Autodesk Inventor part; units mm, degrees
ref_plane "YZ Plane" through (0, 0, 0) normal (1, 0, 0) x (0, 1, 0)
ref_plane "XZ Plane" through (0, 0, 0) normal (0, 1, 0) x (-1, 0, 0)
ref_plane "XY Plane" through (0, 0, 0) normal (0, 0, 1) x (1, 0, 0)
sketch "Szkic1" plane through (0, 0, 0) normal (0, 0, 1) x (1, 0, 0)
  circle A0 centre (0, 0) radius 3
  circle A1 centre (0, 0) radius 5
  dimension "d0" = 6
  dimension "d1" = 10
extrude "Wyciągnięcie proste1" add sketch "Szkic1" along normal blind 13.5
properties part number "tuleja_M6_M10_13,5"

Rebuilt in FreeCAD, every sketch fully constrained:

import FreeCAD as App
import Part
import Sketcher
Q = App.Units.Quantity

doc = App.newDocument("Part")
body = doc.addObject("PartDesign::Body", "Body")

# Sketch on XY plane
sketch1 = body.newObject("Sketcher::SketchObject", "Sketch")
sketch1.AttachmentSupport = (doc.getObject("XY_Plane"), [""])
sketch1.MapMode = "FlatFace"
sketch1.addGeometry([
    Part.Circle(App.Vector(0, 0, 0), App.Vector(0, 0, 1), 5),
    Part.Circle(App.Vector(0, 0, 0), App.Vector(0, 0, 1), 3),
], False)
sketch1.addConstraint([
    Sketcher.Constraint("Coincident", 0, 3, -1, 1),
    Sketcher.Constraint("Coincident", 1, 3, -1, 1),
    Sketcher.Constraint("Diameter", 0, Q("10 mm")),
    Sketcher.Constraint("Diameter", 1, Q("6 mm")),
])
pad1 = body.newObject("PartDesign::Pad", "Pad")
pad1.Profile = sketch1
pad1.Length = 13.5

doc.recompute()
